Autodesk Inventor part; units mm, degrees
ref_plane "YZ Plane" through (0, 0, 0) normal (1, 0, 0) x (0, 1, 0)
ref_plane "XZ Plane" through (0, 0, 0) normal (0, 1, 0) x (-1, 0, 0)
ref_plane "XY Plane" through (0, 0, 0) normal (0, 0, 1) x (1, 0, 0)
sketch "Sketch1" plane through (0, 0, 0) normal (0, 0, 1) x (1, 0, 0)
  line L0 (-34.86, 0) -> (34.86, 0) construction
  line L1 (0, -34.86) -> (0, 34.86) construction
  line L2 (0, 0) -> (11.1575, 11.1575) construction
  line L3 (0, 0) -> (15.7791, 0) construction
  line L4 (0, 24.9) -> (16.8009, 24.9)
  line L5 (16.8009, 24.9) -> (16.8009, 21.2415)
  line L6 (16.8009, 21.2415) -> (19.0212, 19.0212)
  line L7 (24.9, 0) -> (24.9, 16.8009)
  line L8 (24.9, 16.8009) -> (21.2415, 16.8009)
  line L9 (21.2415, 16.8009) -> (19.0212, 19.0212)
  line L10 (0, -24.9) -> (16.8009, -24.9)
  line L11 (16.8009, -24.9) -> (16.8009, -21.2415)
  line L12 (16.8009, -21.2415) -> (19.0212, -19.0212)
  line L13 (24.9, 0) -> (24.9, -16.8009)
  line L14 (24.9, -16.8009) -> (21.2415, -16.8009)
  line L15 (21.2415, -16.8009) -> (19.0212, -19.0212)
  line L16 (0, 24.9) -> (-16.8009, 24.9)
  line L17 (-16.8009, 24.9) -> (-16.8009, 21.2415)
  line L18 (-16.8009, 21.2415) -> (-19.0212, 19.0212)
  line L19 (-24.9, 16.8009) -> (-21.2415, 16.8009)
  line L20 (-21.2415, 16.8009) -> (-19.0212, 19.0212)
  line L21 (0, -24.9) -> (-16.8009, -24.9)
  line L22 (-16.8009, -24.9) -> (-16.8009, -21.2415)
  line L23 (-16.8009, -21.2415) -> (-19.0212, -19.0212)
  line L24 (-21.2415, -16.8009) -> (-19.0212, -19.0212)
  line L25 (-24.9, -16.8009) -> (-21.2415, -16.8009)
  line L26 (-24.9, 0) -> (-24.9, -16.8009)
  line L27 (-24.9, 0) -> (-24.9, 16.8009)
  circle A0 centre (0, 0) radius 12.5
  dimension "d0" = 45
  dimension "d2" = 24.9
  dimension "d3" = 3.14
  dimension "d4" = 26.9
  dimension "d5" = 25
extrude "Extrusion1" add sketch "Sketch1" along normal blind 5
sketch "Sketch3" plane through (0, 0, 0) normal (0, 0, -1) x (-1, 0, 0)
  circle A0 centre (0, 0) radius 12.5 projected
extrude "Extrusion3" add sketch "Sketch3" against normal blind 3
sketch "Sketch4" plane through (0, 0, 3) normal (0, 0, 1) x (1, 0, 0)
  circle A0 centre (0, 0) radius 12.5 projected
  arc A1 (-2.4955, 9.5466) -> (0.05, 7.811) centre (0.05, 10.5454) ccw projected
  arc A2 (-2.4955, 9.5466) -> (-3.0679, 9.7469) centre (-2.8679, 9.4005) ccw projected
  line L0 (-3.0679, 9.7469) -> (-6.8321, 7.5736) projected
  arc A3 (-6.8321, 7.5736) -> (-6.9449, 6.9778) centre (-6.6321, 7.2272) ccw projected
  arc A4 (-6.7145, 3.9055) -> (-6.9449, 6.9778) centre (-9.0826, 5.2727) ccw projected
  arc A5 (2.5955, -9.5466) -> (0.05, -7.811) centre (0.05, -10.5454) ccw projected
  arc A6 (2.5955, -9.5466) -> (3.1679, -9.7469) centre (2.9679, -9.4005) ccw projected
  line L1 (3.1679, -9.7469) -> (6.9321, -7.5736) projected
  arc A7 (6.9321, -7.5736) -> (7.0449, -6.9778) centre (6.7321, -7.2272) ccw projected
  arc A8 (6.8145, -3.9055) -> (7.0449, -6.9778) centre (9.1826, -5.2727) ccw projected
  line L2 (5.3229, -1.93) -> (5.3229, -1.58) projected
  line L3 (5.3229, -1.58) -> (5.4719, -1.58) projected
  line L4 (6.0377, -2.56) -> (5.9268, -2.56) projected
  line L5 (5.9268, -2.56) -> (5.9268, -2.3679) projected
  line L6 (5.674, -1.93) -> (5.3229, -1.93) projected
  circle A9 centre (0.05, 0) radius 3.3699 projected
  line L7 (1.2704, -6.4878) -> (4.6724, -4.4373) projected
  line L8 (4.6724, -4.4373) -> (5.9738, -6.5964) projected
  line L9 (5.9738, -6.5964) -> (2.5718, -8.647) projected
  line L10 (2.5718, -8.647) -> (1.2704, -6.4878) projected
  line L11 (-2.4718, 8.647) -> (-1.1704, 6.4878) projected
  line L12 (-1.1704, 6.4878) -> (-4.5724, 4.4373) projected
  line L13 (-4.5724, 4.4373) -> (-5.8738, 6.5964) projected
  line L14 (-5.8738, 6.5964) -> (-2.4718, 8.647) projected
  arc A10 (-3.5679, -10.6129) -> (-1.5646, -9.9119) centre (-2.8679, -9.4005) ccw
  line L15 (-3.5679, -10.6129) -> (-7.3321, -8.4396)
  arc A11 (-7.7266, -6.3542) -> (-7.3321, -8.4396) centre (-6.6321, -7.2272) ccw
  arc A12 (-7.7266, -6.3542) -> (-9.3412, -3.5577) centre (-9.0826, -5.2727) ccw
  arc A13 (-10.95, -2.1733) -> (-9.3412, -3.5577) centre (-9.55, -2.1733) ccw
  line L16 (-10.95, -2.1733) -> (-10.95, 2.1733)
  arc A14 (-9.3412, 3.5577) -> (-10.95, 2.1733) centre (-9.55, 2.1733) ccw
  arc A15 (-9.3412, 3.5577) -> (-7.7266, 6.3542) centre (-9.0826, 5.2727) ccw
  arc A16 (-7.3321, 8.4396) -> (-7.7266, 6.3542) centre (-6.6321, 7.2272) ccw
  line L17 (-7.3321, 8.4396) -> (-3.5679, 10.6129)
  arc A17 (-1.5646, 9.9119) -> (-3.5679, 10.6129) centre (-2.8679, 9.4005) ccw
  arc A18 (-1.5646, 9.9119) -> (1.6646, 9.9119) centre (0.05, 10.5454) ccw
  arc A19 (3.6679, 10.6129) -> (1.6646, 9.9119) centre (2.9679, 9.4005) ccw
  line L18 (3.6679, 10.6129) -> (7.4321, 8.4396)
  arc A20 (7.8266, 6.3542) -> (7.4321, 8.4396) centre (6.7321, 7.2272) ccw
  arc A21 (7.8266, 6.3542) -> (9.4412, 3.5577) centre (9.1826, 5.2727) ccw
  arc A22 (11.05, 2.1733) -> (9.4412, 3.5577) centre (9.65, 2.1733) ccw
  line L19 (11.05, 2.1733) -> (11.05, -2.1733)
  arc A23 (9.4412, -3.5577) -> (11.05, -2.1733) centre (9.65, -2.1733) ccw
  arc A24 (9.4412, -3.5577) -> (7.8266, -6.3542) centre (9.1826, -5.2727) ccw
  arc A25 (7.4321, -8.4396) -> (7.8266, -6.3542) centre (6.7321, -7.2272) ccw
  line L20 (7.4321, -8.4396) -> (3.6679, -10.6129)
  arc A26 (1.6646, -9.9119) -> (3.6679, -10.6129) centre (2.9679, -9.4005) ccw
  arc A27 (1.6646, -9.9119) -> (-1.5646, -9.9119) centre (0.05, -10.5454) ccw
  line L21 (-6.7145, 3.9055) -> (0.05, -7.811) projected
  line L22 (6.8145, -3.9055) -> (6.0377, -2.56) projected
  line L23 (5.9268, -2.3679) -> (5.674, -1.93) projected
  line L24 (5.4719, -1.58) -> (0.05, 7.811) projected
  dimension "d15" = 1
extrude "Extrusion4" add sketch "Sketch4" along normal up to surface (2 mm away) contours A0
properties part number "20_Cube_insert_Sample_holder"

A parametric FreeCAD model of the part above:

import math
import FreeCAD as App
import Part
import Sketcher

V = App.Vector
Q = App.Units.Quantity


def add_polygon(sketch, points):
    """Adds a closed chain of lines whose ends are joined by coincident constraints."""
    first, n = sketch.GeometryCount, len(points)
    for a, b in zip(points, points[1:] + points[:1]):
        sketch.addGeometry(Part.LineSegment(App.Vector(*a, 0), App.Vector(*b, 0)), False)
    for i in range(n):
        sketch.addConstraint(Sketcher.Constraint("Coincident", first + i, 2, first + (i + 1) % n, 1))

doc = App.newDocument("Part")
body = doc.addObject("PartDesign::Body", "Body")

sketch1 = body.newObject("Sketcher::SketchObject", "Sketch")
sketch1.AttachmentSupport = (doc.getObject("XY_Plane"), [""])
sketch1.MapMode = "FlatFace"
add_polygon(sketch1, [(16.8009, 24.9), (-16.8009, 24.9), (-16.8009, 21.2415), (-21.2415, 16.8009), (-24.9, 16.8009), (-24.9, -16.8009), (-21.2415, -16.8009), (-16.8009, -21.2415), (-16.8009, -24.9), (16.8009, -24.9), (16.8009, -21.2415), (21.2415, -16.8009), (24.9, -16.8009), (24.9, 16.8009), (21.2415, 16.8009), (16.8009, 21.2415)])
sketch1.addGeometry(Part.Circle(V(0, 0, 0), V(0, 0, 1), 12.5), False)
sketch1.addConstraint([
    Sketcher.Constraint("Horizontal", 0),
    Sketcher.Constraint("Vertical", 1),
    Sketcher.Constraint("Horizontal", 3),
    Sketcher.Constraint("Vertical", 4),
    Sketcher.Constraint("Horizontal", 5),
    Sketcher.Constraint("Vertical", 7),
    Sketcher.Constraint("Horizontal", 8),
    Sketcher.Constraint("Vertical", 9),
    Sketcher.Constraint("Horizontal", 11),
    Sketcher.Constraint("Vertical", 12),
    Sketcher.Constraint("Horizontal", 13),
    Sketcher.Constraint("Vertical", 15),
    Sketcher.Constraint("Coincident", 16, 3, -1, 1),
    Sketcher.Constraint("Symmetric", 0, 2, 8, 2, -1, 1),
    Sketcher.Constraint("Symmetric", 2, 2, 10, 2, -1, 1),
    Sketcher.Constraint("Symmetric", 4, 2, 12, 2, -1, 1),
    Sketcher.Constraint("Symmetric", 6, 2, 14, 2, -1, 1),
    Sketcher.Constraint("Symmetric", 6, 2, 9, 2, -2),
    Sketcher.Constraint("Symmetric", 5, 2, 10, 2, -2),
    Sketcher.Constraint("Perpendicular", 2, 6),
    Sketcher.Constraint("Perpendicular", 6, 10),
    Sketcher.Constraint("Perpendicular", 10, 14),
    Sketcher.Constraint("Equal", 13, 1),
    Sketcher.Constraint("Equal", 8, 4),
    Sketcher.Constraint("Diameter", 16, 25.0),
    Sketcher.Constraint("DistanceY", -1, 1, 0, 2, 24.9),
    Sketcher.Constraint("Distance", 2, 6.28),
    Sketcher.Constraint("DistanceX", 0, 2, 0, 1, 33.6018),
])
pad1 = body.newObject("PartDesign::Pad", "Pad")
pad1.Profile = sketch1
pad1.Length = 5

sketch2 = body.newObject("Sketcher::SketchObject", "Sketch001")
sketch2.AttachmentSupport = (doc.getObject("XY_Plane"), [""])
sketch2.MapMode = "FlatFace"
sketch2.addGeometry(Part.Circle(V(0, 0, 0), V(0, 0, 1), 12.5), False)
sketch2.addConstraint([
    Sketcher.Constraint("Coincident", 0, 3, -1, 1),
    Sketcher.Constraint("Diameter", 0, 25.0),
])
pad2 = body.newObject("PartDesign::Pad", "Pad001")
pad2.Profile = sketch2
pad2.Length = 3

sketch3 = body.newObject("Sketcher::SketchObject", "Sketch002")
sketch3.AttachmentSupport = (doc.getObject("XY_Plane"), [""])
sketch3.MapMode = "FlatFace"
sketch3.AttachmentOffset = App.Placement(V(0, 0, 3), App.Rotation())
sketch3.addGeometry([
    Part.Circle(V(0, 0, 0), V(0, 0, 1), 12.5),
    Part.ArcOfCircle(Part.Circle(V(-2.8679, -9.4005, 0), V(0, 0, 1), 1.399969), math.radians(-120.000728), math.radians(-21.424474)),
    Part.LineSegment(V(-3.5679, -10.6129, 0), V(-7.3321, -8.4396, 0)),
    Part.ArcOfCircle(Part.Circle(V(-6.6321, -7.2272, 0), V(0, 0, 1), 1.400021), math.radians(141.42328), math.radians(239.999272)),
    Part.ArcOfCircle(Part.Circle(V(-9.0826, -5.2727, 0), V(0, 0, 1), 1.734468), math.radians(-38.574685), math.radians(98.57487)),
    Part.ArcOfCircle(Part.Circle(V(-9.55, -2.1733, 0), V(0, 0, 1), 1.4), math.radians(180), math.radians(278.576903)),
    Part.LineSegment(V(-10.95, -2.1733, 0), V(-10.95, 2.1733, 0)),
    Part.ArcOfCircle(Part.Circle(V(-9.55, 2.1733, 0), V(0, 0, 1), 1.400057), math.radians(81.423097), math.radians(180)),
    Part.ArcOfCircle(Part.Circle(V(-9.0826, 5.2727, 0), V(0, 0, 1), 1.734387), math.radians(-98.57487), math.radians(38.574685)),
    Part.ArcOfCircle(Part.Circle(V(-6.6321, 7.2272, 0), V(0, 0, 1), 1.399969), math.radians(120.000728), math.radians(218.57672)),
    Part.LineSegment(V(-7.3321, 8.4396, 0), V(-3.5679, 10.6129, 0)),
    Part.ArcOfCircle(Part.Circle(V(-2.8679, 9.4005, 0), V(0, 0, 1), 1.400043), math.radians(21.424474), math.radians(120.000728)),
    Part.ArcOfCircle(Part.Circle(V(0.05, 10.5454, 0), V(0, 0, 1), 1.734432), math.radians(-158.577081), math.radians(-21.422919)),
    Part.ArcOfCircle(Part.Circle(V(2.9679, 9.4005, 0), V(0, 0, 1), 1.399969), math.radians(59.999272), math.radians(158.575526)),
    Part.LineSegment(V(3.6679, 10.6129, 0), V(7.4321, 8.4396, 0)),
    Part.ArcOfCircle(Part.Circle(V(6.7321, 7.2272, 0), V(0, 0, 1), 1.400021), math.radians(-38.57672), math.radians(59.999272)),
    Part.ArcOfCircle(Part.Circle(V(9.1826, 5.2727, 0), V(0, 0, 1), 1.734468), math.radians(141.425315), math.radians(278.57487)),
    Part.ArcOfCircle(Part.Circle(V(9.65, 2.1733, 0), V(0, 0, 1), 1.4), math.radians(0), math.radians(98.576903)),
    Part.LineSegment(V(11.05, 2.1733, 0), V(11.05, -2.1733, 0)),
    Part.ArcOfCircle(Part.Circle(V(9.65, -2.1733, 0), V(0, 0, 1), 1.400057), math.radians(-98.576903), math.radians(0)),
    Part.ArcOfCircle(Part.Circle(V(9.1826, -5.2727, 0), V(0, 0, 1), 1.734387), math.radians(81.42513), math.radians(218.574685)),
    Part.ArcOfCircle(Part.Circle(V(6.7321, -7.2272, 0), V(0, 0, 1), 1.399969), math.radians(-59.999272), math.radians(38.57672)),
    Part.LineSegment(V(7.4321, -8.4396, 0), V(3.6679, -10.6129, 0)),
    Part.ArcOfCircle(Part.Circle(V(2.9679, -9.4005, 0), V(0, 0, 1), 1.400043), math.radians(-158.575526), math.radians(-59.999272)),
    Part.ArcOfCircle(Part.Circle(V(0.05, -10.5454, 0), V(0, 0, 1), 1.734432), math.radians(21.422919), math.radians(158.577081)),
], False)
sketch3.addConstraint([
    Sketcher.Constraint("Tangent", 1, 1, 2, 1),
    Sketcher.Constraint("Tangent", 2, 2, 3, 2),
    Sketcher.Constraint("Tangent", 3, 1, 4, 1),
    Sketcher.Constraint("Tangent", 4, 2, 5, 2),
    Sketcher.Constraint("Tangent", 5, 1, 6, 1),
    Sketcher.Constraint("Tangent", 6, 2, 7, 2),
    Sketcher.Constraint("Tangent", 7, 1, 8, 1),
    Sketcher.Constraint("Tangent", 8, 2, 9, 2),
    Sketcher.Constraint("Tangent", 9, 1, 10, 1),
    Sketcher.Constraint("Tangent", 10, 2, 11, 2),
    Sketcher.Constraint("Tangent", 11, 1, 12, 1),
    Sketcher.Constraint("Tangent", 12, 2, 13, 2),
    Sketcher.Constraint("Tangent", 13, 1, 14, 1),
    Sketcher.Constraint("Tangent", 14, 2, 15, 2),
    Sketcher.Constraint("Tangent", 15, 1, 16, 1),
    Sketcher.Constraint("Tangent", 16, 2, 17, 2),
    Sketcher.Constraint("Tangent", 17, 1, 18, 1),
    Sketcher.Constraint("Tangent", 18, 2, 19, 2),
    Sketcher.Constraint("Tangent", 19, 1, 20, 1),
    Sketcher.Constraint("Tangent", 20, 2, 21, 2),
    Sketcher.Constraint("Tangent", 21, 1, 22, 1),
    Sketcher.Constraint("Tangent", 22, 2, 23, 2),
    Sketcher.Constraint("Tangent", 23, 1, 24, 1),
    Sketcher.Constraint("Tangent", 24, 2, 1, 2),
    Sketcher.Constraint("Vertical", 6),
    Sketcher.Constraint("Vertical", 18),
    Sketcher.Constraint("Coincident", 0, 3, -1, 1),
    Sketcher.Constraint("Equal", 1, 3),
    Sketcher.Constraint("Equal", 3, 5),
    Sketcher.Constraint("Equal", 5, 7),
    Sketcher.Constraint("Equal", 4, 8),
    Sketcher.Constraint("Equal", 7, 9),
    Sketcher.Constraint("Equal", 9, 11),
    Sketcher.Constraint("Equal", 8, 12),
    Sketcher.Constraint("Equal", 11, 13),
    Sketcher.Constraint("Equal", 13, 15),
    Sketcher.Constraint("Equal", 12, 16),
    Sketcher.Constraint("Equal", 15, 17),
    Sketcher.Constraint("Equal", 17, 19),
    Sketcher.Constraint("Equal", 16, 20),
    Sketcher.Constraint("Equal", 19, 21),
    Sketcher.Constraint("Equal", 21, 23),
    Sketcher.Constraint("Equal", 20, 24),
    Sketcher.Constraint("Symmetric", 4, 3, 8, 3, -1),
    Sketcher.Constraint("Symmetric", 1, 3, 11, 3, -1),
    Sketcher.Constraint("Symmetric", 16, 3, 20, 3, -1),
    Sketcher.Constraint("Symmetric", 13, 3, 23, 3, -1),
    Sketcher.Constraint("Parallel", 2, 14),
    Sketcher.Constraint("Parallel", 10, 22),
    Sketcher.Constraint("Horizontal", 11, 3, 13, 3),
    Sketcher.Constraint("Horizontal", 9, 3, 15, 3),
    Sketcher.Constraint("Horizontal", 8, 3, 16, 3),
    Sketcher.Constraint("Horizontal", 7, 3, 17, 3),
    Sketcher.Constraint("Horizontal", 3, 3, 21, 3),
    Sketcher.Constraint("Diameter", 0, 25.0),
    Sketcher.Constraint("Radius", 1, 1.4),
    Sketcher.Constraint("Angle", 2, Q("149.9996 deg")),
    Sketcher.Constraint("Radius", 4, 1.7345),
    Sketcher.Constraint("DistanceY", 3, 3, 8, 3, 12.5),
    Sketcher.Constraint("DistanceX", 7, 3, 12, 3, 9.6),
    Sketcher.Constraint("DistanceX", 9, 3, 13, 3, 9.6),
    Sketcher.Constraint("DistanceX", 5, 3, -1, 1, 9.55),
    Sketcher.Constraint("DistanceY", 6, 1, 6, 2, 4.3466),
    Sketcher.Constraint("DistanceX", 1, 3, -1, 1, 2.868),
])
pad3 = body.newObject("PartDesign::Pad", "Pad002")
pad3.Profile = sketch3
pad3.Length = 2

doc.recompute()
